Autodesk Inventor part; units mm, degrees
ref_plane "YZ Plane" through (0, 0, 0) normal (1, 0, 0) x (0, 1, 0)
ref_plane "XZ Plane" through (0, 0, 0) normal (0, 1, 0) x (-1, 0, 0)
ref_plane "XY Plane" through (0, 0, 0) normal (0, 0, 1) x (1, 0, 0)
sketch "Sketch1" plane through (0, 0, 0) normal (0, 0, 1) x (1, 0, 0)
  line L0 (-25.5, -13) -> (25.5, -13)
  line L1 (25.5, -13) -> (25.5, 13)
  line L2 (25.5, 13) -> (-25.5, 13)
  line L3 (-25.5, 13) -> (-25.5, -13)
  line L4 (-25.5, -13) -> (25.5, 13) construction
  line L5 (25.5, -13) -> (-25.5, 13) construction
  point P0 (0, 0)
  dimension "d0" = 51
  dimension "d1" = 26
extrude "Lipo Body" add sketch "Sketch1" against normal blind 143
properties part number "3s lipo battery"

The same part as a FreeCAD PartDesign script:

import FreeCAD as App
import Part
import Sketcher


def add_polygon(sketch, points):
    """Adds a closed chain of lines whose ends are joined by coincident constraints."""
    first, n = sketch.GeometryCount, len(points)
    for a, b in zip(points, points[1:] + points[:1]):
        sketch.addGeometry(Part.LineSegment(App.Vector(*a, 0), App.Vector(*b, 0)), False)
    for i in range(n):
        sketch.addConstraint(Sketcher.Constraint("Coincident", first + i, 2, first + (i + 1) % n, 1))

doc = App.newDocument("Part")
body = doc.addObject("PartDesign::Body", "Body")

# Sketch on XY plane
sketch1 = body.newObject("Sketcher::SketchObject", "Sketch")
sketch1.AttachmentSupport = (doc.getObject("XY_Plane"), [""])
sketch1.MapMode = "FlatFace"
add_polygon(sketch1, [(-26, 13), (-26, -13), (26, -13), (26, 13)])  # lines 0-3
sketch1.addConstraint([
    Sketcher.Constraint("Vertical", 0),
    Sketcher.Constraint("Horizontal", 1),
    Sketcher.Constraint("Vertical", 2),
    Sketcher.Constraint("Horizontal", 3),
    Sketcher.Constraint("Symmetric", 0, 2, 2, 2, -1, 1),
    Sketcher.Constraint("DistanceX", 1, 1, 1, 2, 51.0),
    Sketcher.Constraint("DistanceY", 0, 2, 0, 1, 26.0),
])
pad1 = body.newObject("PartDesign::Pad", "Pad")
pad1.Profile = sketch1
pad1.Length = 143
pad1.Reversed = True

doc.recompute()
